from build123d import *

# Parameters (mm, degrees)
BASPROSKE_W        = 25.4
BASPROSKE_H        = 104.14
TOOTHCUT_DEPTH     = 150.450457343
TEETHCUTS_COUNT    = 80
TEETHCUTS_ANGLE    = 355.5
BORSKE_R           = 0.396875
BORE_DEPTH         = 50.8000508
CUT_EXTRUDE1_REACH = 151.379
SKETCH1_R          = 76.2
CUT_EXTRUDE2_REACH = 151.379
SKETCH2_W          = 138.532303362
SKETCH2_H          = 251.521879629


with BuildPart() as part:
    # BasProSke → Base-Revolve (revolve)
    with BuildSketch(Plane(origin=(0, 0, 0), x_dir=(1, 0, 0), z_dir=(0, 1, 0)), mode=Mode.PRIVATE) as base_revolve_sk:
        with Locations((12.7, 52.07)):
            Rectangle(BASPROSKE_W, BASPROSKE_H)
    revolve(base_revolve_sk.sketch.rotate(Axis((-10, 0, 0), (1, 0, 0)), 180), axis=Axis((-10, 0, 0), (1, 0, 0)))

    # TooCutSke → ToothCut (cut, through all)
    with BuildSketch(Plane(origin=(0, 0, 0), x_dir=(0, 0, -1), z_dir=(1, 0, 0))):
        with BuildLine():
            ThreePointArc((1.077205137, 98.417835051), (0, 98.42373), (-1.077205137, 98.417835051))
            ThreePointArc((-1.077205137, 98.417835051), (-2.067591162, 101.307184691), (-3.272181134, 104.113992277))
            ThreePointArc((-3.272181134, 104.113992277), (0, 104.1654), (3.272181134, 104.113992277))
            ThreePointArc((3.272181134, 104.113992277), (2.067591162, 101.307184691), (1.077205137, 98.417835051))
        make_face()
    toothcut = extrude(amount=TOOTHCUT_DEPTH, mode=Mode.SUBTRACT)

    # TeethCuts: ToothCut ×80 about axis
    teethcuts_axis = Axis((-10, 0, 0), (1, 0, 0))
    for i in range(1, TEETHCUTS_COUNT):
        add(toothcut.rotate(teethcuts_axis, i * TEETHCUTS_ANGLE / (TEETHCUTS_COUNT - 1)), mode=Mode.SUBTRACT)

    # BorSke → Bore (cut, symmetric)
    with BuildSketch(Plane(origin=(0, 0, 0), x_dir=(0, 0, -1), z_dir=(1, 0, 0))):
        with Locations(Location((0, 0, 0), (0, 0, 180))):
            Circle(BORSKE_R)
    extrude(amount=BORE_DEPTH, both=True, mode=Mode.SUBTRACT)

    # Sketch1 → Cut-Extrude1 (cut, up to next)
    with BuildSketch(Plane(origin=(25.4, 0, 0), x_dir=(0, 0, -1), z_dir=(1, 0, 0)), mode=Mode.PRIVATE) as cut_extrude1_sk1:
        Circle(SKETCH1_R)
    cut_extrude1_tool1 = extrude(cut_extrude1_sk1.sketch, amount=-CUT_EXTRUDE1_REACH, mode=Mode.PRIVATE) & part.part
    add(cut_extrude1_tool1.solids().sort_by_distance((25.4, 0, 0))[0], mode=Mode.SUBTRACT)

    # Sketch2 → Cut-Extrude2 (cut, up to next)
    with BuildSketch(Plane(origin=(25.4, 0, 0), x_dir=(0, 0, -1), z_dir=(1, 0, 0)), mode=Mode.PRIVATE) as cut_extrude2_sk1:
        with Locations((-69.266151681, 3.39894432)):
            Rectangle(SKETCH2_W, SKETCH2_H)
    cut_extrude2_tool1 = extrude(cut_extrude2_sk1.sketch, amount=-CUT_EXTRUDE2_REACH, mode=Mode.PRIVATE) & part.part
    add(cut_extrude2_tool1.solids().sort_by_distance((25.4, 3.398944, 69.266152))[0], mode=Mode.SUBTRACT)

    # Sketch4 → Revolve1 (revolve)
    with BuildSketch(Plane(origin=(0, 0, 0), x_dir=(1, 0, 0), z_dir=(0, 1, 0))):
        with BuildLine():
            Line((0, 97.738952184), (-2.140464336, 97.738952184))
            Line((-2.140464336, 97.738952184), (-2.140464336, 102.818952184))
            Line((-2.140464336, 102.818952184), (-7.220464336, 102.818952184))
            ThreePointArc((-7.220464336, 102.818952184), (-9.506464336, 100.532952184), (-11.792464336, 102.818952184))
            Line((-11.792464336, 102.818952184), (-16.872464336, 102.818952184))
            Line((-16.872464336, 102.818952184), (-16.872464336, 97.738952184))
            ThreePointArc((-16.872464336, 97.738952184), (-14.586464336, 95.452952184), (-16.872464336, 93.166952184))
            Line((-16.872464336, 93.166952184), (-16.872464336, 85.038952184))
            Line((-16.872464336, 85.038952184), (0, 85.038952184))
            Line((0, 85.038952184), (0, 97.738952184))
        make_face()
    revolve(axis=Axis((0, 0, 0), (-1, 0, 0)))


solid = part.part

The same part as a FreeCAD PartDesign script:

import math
import FreeCAD as App
import Part
import Sketcher
Q = App.Units.Quantity

doc = App.newDocument("Part")
body = doc.addObject("PartDesign::Body", "Body")

# Sketch on XZ plane
sketch1 = body.newObject("Sketcher::SketchObject", "Sketch")
sketch1.AttachmentSupport = (doc.getObject("XZ_Plane"), [""])
sketch1.MapMode = "FlatFace"
sketch1.addGeometry(Part.LineSegment(App.Vector(0, -104, 0), App.Vector(0, 0, 0)), False)
sketch1.addGeometry(Part.LineSegment(App.Vector(0, 0, 0), App.Vector(25, 0, 0)), False)
sketch1.addGeometry(Part.LineSegment(App.Vector(25, 0, 0), App.Vector(25, -104, 0)), False)
sketch1.addGeometry(Part.LineSegment(App.Vector(25, -104, 0), App.Vector(0, -104, 0)), False)
sketch1.addConstraint(Sketcher.Constraint("Coincident", 0, 2, 1, 1))
sketch1.addConstraint(Sketcher.Constraint("Coincident", 1, 2, 2, 1))
sketch1.addConstraint(Sketcher.Constraint("Coincident", 2, 2, 3, 1))
sketch1.addConstraint(Sketcher.Constraint("Coincident", 3, 2, 0, 1))
sketch1.addConstraint(Sketcher.Constraint("Vertical", 0))
sketch1.addConstraint(Sketcher.Constraint("Horizontal", 1))
sketch1.addConstraint(Sketcher.Constraint("Vertical", 2))
sketch1.addConstraint(Sketcher.Constraint("Horizontal", 3))
sketch1.addConstraint(Sketcher.Constraint("Coincident", 0, 2, -1, 1))
sketch1.addConstraint(Sketcher.Constraint("DistanceX", 1, 1, 1, 2, Q("1 in")))
sketch1.addConstraint(Sketcher.Constraint("DistanceY", 0, 1, 0, 2, Q("4.1 in")))
revolution = body.newObject("PartDesign::Revolution", "Revolution")
revolution.Profile = sketch1
revolution.ReferenceAxis = (sketch1, ["H_Axis"])
revolution.Angle = 360

# Sketch on YZ plane
sketch2 = body.newObject("Sketcher::SketchObject", "Sketch001")
sketch2.AttachmentSupport = (doc.getObject("YZ_Plane"), [""])
sketch2.MapMode = "FlatFace"
sketch2.addGeometry(Part.ArcOfCircle(Part.Circle(App.Vector(0, 0, 0), App.Vector(0, 0, 1), 98.4), math.radians(-0.63), math.radians(0.63)), False)
sketch2.addGeometry(Part.ArcOfCircle(Part.Circle(App.Vector(86.7, -40, 0), App.Vector(0, 0, 1), 40.6), math.radians(64.62), math.radians(73.23)), False)
sketch2.addGeometry(Part.ArcOfCircle(Part.Circle(App.Vector(0, 0, 0), App.Vector(0, 0, 1), 104.2), math.radians(-1.8), math.radians(1.8)), False)
sketch2.addGeometry(Part.ArcOfCircle(Part.Circle(App.Vector(86.7, 40, 0), App.Vector(0, 0, 1), 40.6), math.radians(-73.23), math.radians(-64.62)), False)
sketch2.addConstraint(Sketcher.Constraint("Coincident", 0, 1, 1, 2))
sketch2.addConstraint(Sketcher.Constraint("Coincident", 1, 1, 2, 1))
sketch2.addConstraint(Sketcher.Constraint("Coincident", 2, 2, 3, 2))
sketch2.addConstraint(Sketcher.Constraint("Coincident", 3, 1, 0, 2))
sketch2.addConstraint(Sketcher.Constraint("Coincident", 0, 3, -1, 1))
sketch2.addConstraint(Sketcher.Constraint("Coincident", 2, 3, -1, 1))
sketch2.addConstraint(Sketcher.Constraint("Equal", 1, 3))
sketch2.addConstraint(Sketcher.Constraint("Symmetric", 1, 3, 3, 3, -1))
sketch2.addConstraint(Sketcher.Constraint("Radius", 1, Q("1.6 in")))
sketch2.addConstraint(Sketcher.Constraint("Radius", 2, Q("4.101 in")))
sketch2.addConstraint(Sketcher.Constraint("Radius", 0, Q("98.423723 mm")))
sketch2.addConstraint(Sketcher.Constraint("DistanceY", 1, 3, -1, 1, Q("39.9895 mm")))
sketch2.addConstraint(Sketcher.Constraint("DistanceX", -1, 1, 1, 3, Q("86.694231 mm")))
pocket1 = body.newObject("PartDesign::Pocket", "Pocket")
pocket1.Profile = sketch2
pocket1.Type = "ThroughAll"
pocket1.Reversed = True
doc.recompute()

polarpattern = body.newObject("PartDesign::PolarPattern", "PolarPattern")
polarpattern.Originals = [pocket1]
polarpattern.Axis = (doc.getObject("X_Axis"), [""])
polarpattern.Angle = 360
polarpattern.Occurrences = 80
body.Tip = polarpattern

# Sketch on YZ plane
sketch3 = body.newObject("Sketcher::SketchObject", "Sketch002")
sketch3.AttachmentSupport = (doc.getObject("YZ_Plane"), [""])
sketch3.MapMode = "FlatFace"
sketch3.addGeometry(Part.Circle(App.Vector(0, 0, 0), App.Vector(0, 0, 1), 0.4), False)
sketch3.addConstraint(Sketcher.Constraint("Coincident", 0, 3, -1, 1))
sketch3.addConstraint(Sketcher.Constraint("Diameter", 0, Q("0.03125 in")))
pocket2 = body.newObject("PartDesign::Pocket", "Pocket001")
pocket2.Profile = sketch3
pocket2.Length = 101.600102
pocket2.Midplane = True

# Sketch on YZ plane
sketch4 = body.newObject("Sketcher::SketchObject", "Sketch003")
sketch4.AttachmentSupport = (doc.getObject("YZ_Plane"), [""])
sketch4.MapMode = "FlatFace"
sketch4.AttachmentOffset = App.Placement(App.Vector(0, 0, 1 * 25.4), App.Rotation())
sketch4.addGeometry(Part.Circle(App.Vector(0, 0, 0), App.Vector(0, 0, 1), 76), False)
sketch4.addConstraint(Sketcher.Constraint("Coincident", 0, 3, -1, 1))
sketch4.addConstraint(Sketcher.Constraint("Diameter", 0, Q("6 in")))
pocket3 = body.newObject("PartDesign::Pocket", "Pocket002")
pocket3.Profile = sketch4
pocket3.Length = Q("1 in")

# Sketch on YZ plane
sketch5 = body.newObject("Sketcher::SketchObject", "Sketch004")
sketch5.AttachmentSupport = (doc.getObject("YZ_Plane"), [""])
sketch5.MapMode = "FlatFace"
sketch5.AttachmentOffset = App.Placement(App.Vector(0, 0, 1 * 25.4), App.Rotation())
sketch5.addGeometry(Part.LineSegment(App.Vector(129, 139, 0), App.Vector(-122, 139, 0)), False)
sketch5.addGeometry(Part.LineSegment(App.Vector(-122, 139, 0), App.Vector(-122, 0, 0)), False)
sketch5.addGeometry(Part.LineSegment(App.Vector(-122, 0, 0), App.Vector(129, 0, 0)), False)
sketch5.addGeometry(Part.LineSegment(App.Vector(129, 0, 0), App.Vector(129, 139, 0)), False)
sketch5.addConstraint(Sketcher.Constraint("Coincident", 0, 2, 1, 1))
sketch5.addConstraint(Sketcher.Constraint("Coincident", 1, 2, 2, 1))
sketch5.addConstraint(Sketcher.Constraint("Coincident", 2, 2, 3, 1))
sketch5.addConstraint(Sketcher.Constraint("Coincident", 3, 2, 0, 1))
sketch5.addConstraint(Sketcher.Constraint("Horizontal", 0))
sketch5.addConstraint(Sketcher.Constraint("Vertical", 1))
sketch5.addConstraint(Sketcher.Constraint("Horizontal", 2))
sketch5.addConstraint(Sketcher.Constraint("Vertical", 3))
sketch5.addConstraint(Sketcher.Constraint("PointOnObject", 1, 2, -1))
sketch5.addConstraint(Sketcher.Constraint("DistanceX", 0, 2, 0, 1, Q("251.52188 mm")))
sketch5.addConstraint(Sketcher.Constraint("DistanceY", 1, 2, 1, 1, Q("138.532303 mm")))
sketch5.addConstraint(Sketcher.Constraint("DistanceX", 0, 2, -1, 1, Q("122.361995 mm")))
pocket4 = body.newObject("PartDesign::Pocket", "Pocket003")
pocket4.Profile = sketch5
pocket4.Length = Q("1 in")

# Sketch on XZ plane
sketch6 = body.newObject("Sketcher::SketchObject", "Sketch005")
sketch6.AttachmentSupport = (doc.getObject("XZ_Plane"), [""])
sketch6.MapMode = "FlatFace"
sketch6.addGeometry(Part.LineSegment(App.Vector(0, -97.7, 0), App.Vector(-2.1, -97.7, 0)), False)
sketch6.addGeometry(Part.LineSegment(App.Vector(-2.1, -97.7, 0), App.Vector(-2.1, -102.8, 0)), False)
sketch6.addGeometry(Part.LineSegment(App.Vector(-2.1, -102.8, 0), App.Vector(-7.2, -102.8, 0)), False)
sketch6.addGeometry(Part.ArcOfCircle(Part.Circle(App.Vector(-9.5, -102.8, 0), App.Vector(0, 0, 1), 2.3), math.radians(0), math.radians(180)), False)
sketch6.addGeometry(Part.LineSegment(App.Vector(-11.8, -102.8, 0), App.Vector(-16.9, -102.8, 0)), False)
sketch6.addGeometry(Part.LineSegment(App.Vector(-16.9, -102.8, 0), App.Vector(-16.9, -97.7, 0)), False)
sketch6.addGeometry(Part.ArcOfCircle(Part.Circle(App.Vector(-16.9, -95.5, 0), App.Vector(0, 0, 1), 2.3), math.radians(-90), math.radians(90)), False)
sketch6.addGeometry(Part.LineSegment(App.Vector(-16.9, -93.2, 0), App.Vector(-16.9, -85, 0)), False)
sketch6.addGeometry(Part.LineSegment(App.Vector(-16.9, -85, 0), App.Vector(0, -85, 0)), False)
sketch6.addGeometry(Part.LineSegment(App.Vector(0, -85, 0), App.Vector(0, -97.7, 0)), False)
sketch6.addConstraint(Sketcher.Constraint("Coincident", 0, 2, 1, 1))
sketch6.addConstraint(Sketcher.Constraint("Coincident", 1, 2, 2, 1))
sketch6.addConstraint(Sketcher.Constraint("Coincident", 2, 2, 3, 1))
sketch6.addConstraint(Sketcher.Constraint("Coincident", 3, 2, 4, 1))
sketch6.addConstraint(Sketcher.Constraint("Coincident", 4, 2, 5, 1))
sketch6.addConstraint(Sketcher.Constraint("Coincident", 5, 2, 6, 1))
sketch6.addConstraint(Sketcher.Constraint("Coincident", 6, 2, 7, 1))
sketch6.addConstraint(Sketcher.Constraint("Coincident", 7, 2, 8, 1))
sketch6.addConstraint(Sketcher.Constraint("Coincident", 8, 2, 9, 1))
sketch6.addConstraint(Sketcher.Constraint("Coincident", 9, 2, 0, 1))
sketch6.addConstraint(Sketcher.Constraint("Horizontal", 0))
sketch6.addConstraint(Sketcher.Constraint("Vertical", 1))
sketch6.addConstraint(Sketcher.Constraint("Horizontal", 2))
sketch6.addConstraint(Sketcher.Constraint("Horizontal", 4))
sketch6.addConstraint(Sketcher.Constraint("Vertical", 5))
sketch6.addConstraint(Sketcher.Constraint("Vertical", 7))
sketch6.addConstraint(Sketcher.Constraint("Horizontal", 8))
sketch6.addConstraint(Sketcher.Constraint("Vertical", 9))
sketch6.addConstraint(Sketcher.Constraint("Equal", 3, 6))
sketch6.addConstraint(Sketcher.Constraint("PointOnObject", 8, 2, -2))
sketch6.addConstraint(Sketcher.Constraint("Horizontal", 3, 3, 1, 2))
sketch6.addConstraint(Sketcher.Constraint("Horizontal", 2, 2, 3, 2))
sketch6.addConstraint(Sketcher.Constraint("Horizontal", 0, 2, 5, 2))
sketch6.addConstraint(Sketcher.Constraint("Vertical", 6, 3, 4, 2))
sketch6.addConstraint(Sketcher.Constraint("Vertical", 5, 2, 6, 2))
sketch6.addConstraint(Sketcher.Constraint("Equal", 2, 4))
sketch6.addConstraint(Sketcher.Constraint("Equal", 4, 1))
sketch6.addConstraint(Sketcher.Constraint("Radius", 3, Q("0.09 in")))
sketch6.addConstraint(Sketcher.Constraint("DistanceX", 2, 2, 2, 1, Q("0.2 in")))
sketch6.addConstraint(Sketcher.Constraint("DistanceY", 9, 2, 9, 1, Q("0.5 in")))
sketch6.addConstraint(Sketcher.Constraint("DistanceX", 0, 2, 0, 1, Q("2.140464 mm")))
sketch6.addConstraint(Sketcher.Constraint("DistanceY", 3, 3, -1, 1, Q("102.818952 mm")))
revolution2 = body.newObject("PartDesign::Revolution", "Revolution001")
revolution2.Profile = sketch6
revolution2.ReferenceAxis = (sketch6, ["H_Axis"])
revolution2.Angle = 360

doc.recompute()
